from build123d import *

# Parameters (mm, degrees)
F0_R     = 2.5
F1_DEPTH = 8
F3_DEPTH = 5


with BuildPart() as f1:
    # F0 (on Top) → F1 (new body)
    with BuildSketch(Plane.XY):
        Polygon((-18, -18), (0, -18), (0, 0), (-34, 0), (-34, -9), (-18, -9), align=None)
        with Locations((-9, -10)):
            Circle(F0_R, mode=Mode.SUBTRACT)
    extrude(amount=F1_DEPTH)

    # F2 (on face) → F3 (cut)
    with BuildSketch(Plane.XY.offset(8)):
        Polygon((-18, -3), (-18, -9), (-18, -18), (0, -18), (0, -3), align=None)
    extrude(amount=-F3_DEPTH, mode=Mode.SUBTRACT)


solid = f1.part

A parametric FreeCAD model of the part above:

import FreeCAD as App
import Part
import Sketcher
Q = App.Units.Quantity


def add_polygon(sketch, points):
    """Adds a closed chain of lines whose ends are joined by coincident constraints."""
    first, n = sketch.GeometryCount, len(points)
    for a, b in zip(points, points[1:] + points[:1]):
        sketch.addGeometry(Part.LineSegment(App.Vector(*a, 0), App.Vector(*b, 0)), False)
    for i in range(n):
        sketch.addConstraint(Sketcher.Constraint("Coincident", first + i, 2, first + (i + 1) % n, 1))

doc = App.newDocument("Part")
body = doc.addObject("PartDesign::Body", "Body")

# Sketch on XY plane
sketch1 = body.newObject("Sketcher::SketchObject", "Sketch")
sketch1.AttachmentSupport = (doc.getObject("XY_Plane"), [""])
sketch1.MapMode = "FlatFace"
add_polygon(sketch1, [(-18, -18), (0, -18), (0, 0), (-34, 0), (-34, -9), (-18, -9)])  # lines 0-5
sketch1.addGeometry(Part.Circle(App.Vector(-9, -10, 0), App.Vector(0, 0, 1), 2.5), False)  # 6
sketch1.addConstraint([
    Sketcher.Constraint("Horizontal", 0),
    Sketcher.Constraint("Vertical", 1),
    Sketcher.Constraint("Horizontal", 2),
    Sketcher.Constraint("Vertical", 3),
    Sketcher.Constraint("Horizontal", 4),
    Sketcher.Constraint("Vertical", 5),
    Sketcher.Constraint("Coincident", 1, 2, -1, 1),
    Sketcher.Constraint("Equal", 0, 1),
    Sketcher.Constraint("Equal", 3, 5),
    Sketcher.Constraint("Diameter", 6, Q("5 mm")),
    Sketcher.Constraint("DistanceX", 0, 1, 0, 2, Q("18 mm")),
    Sketcher.Constraint("DistanceX", 2, 2, 2, 1, Q("34 mm")),
    Sketcher.Constraint("DistanceX", 6, 3, -1, 1, Q("9 mm")),
    Sketcher.Constraint("DistanceY", 6, 3, -1, 1, Q("10 mm")),
])
pad1 = body.newObject("PartDesign::Pad", "Pad")
pad1.Profile = sketch1
pad1.Length = 8

# Sketch on XY plane
sketch2 = body.newObject("Sketcher::SketchObject", "Sketch001")
sketch2.AttachmentSupport = (doc.getObject("XY_Plane"), [""])
sketch2.MapMode = "FlatFace"
sketch2.AttachmentOffset = App.Placement(App.Vector(0, 0, 8), App.Rotation())
add_polygon(sketch2, [(-18, -3), (-18, -18), (0, -18), (0, -3)])  # lines 0-3
sketch2.addConstraint([
    Sketcher.Constraint("Vertical", 0),
    Sketcher.Constraint("Horizontal", 1),
    Sketcher.Constraint("Vertical", 2),
    Sketcher.Constraint("Horizontal", 3),
    Sketcher.Constraint("PointOnObject", 1, 2, -2),
    Sketcher.Constraint("DistanceX", 1, 1, 1, 2, Q("18 mm")),
    Sketcher.Constraint("DistanceY", 0, 2, 0, 1, Q("15 mm")),
    Sketcher.Constraint("DistanceY", 0, 2, -1, 1, Q("18 mm")),
])
pocket1 = body.newObject("PartDesign::Pocket", "Pocket")
pocket1.Profile = sketch2
pocket1.Length = 5

doc.recompute()
